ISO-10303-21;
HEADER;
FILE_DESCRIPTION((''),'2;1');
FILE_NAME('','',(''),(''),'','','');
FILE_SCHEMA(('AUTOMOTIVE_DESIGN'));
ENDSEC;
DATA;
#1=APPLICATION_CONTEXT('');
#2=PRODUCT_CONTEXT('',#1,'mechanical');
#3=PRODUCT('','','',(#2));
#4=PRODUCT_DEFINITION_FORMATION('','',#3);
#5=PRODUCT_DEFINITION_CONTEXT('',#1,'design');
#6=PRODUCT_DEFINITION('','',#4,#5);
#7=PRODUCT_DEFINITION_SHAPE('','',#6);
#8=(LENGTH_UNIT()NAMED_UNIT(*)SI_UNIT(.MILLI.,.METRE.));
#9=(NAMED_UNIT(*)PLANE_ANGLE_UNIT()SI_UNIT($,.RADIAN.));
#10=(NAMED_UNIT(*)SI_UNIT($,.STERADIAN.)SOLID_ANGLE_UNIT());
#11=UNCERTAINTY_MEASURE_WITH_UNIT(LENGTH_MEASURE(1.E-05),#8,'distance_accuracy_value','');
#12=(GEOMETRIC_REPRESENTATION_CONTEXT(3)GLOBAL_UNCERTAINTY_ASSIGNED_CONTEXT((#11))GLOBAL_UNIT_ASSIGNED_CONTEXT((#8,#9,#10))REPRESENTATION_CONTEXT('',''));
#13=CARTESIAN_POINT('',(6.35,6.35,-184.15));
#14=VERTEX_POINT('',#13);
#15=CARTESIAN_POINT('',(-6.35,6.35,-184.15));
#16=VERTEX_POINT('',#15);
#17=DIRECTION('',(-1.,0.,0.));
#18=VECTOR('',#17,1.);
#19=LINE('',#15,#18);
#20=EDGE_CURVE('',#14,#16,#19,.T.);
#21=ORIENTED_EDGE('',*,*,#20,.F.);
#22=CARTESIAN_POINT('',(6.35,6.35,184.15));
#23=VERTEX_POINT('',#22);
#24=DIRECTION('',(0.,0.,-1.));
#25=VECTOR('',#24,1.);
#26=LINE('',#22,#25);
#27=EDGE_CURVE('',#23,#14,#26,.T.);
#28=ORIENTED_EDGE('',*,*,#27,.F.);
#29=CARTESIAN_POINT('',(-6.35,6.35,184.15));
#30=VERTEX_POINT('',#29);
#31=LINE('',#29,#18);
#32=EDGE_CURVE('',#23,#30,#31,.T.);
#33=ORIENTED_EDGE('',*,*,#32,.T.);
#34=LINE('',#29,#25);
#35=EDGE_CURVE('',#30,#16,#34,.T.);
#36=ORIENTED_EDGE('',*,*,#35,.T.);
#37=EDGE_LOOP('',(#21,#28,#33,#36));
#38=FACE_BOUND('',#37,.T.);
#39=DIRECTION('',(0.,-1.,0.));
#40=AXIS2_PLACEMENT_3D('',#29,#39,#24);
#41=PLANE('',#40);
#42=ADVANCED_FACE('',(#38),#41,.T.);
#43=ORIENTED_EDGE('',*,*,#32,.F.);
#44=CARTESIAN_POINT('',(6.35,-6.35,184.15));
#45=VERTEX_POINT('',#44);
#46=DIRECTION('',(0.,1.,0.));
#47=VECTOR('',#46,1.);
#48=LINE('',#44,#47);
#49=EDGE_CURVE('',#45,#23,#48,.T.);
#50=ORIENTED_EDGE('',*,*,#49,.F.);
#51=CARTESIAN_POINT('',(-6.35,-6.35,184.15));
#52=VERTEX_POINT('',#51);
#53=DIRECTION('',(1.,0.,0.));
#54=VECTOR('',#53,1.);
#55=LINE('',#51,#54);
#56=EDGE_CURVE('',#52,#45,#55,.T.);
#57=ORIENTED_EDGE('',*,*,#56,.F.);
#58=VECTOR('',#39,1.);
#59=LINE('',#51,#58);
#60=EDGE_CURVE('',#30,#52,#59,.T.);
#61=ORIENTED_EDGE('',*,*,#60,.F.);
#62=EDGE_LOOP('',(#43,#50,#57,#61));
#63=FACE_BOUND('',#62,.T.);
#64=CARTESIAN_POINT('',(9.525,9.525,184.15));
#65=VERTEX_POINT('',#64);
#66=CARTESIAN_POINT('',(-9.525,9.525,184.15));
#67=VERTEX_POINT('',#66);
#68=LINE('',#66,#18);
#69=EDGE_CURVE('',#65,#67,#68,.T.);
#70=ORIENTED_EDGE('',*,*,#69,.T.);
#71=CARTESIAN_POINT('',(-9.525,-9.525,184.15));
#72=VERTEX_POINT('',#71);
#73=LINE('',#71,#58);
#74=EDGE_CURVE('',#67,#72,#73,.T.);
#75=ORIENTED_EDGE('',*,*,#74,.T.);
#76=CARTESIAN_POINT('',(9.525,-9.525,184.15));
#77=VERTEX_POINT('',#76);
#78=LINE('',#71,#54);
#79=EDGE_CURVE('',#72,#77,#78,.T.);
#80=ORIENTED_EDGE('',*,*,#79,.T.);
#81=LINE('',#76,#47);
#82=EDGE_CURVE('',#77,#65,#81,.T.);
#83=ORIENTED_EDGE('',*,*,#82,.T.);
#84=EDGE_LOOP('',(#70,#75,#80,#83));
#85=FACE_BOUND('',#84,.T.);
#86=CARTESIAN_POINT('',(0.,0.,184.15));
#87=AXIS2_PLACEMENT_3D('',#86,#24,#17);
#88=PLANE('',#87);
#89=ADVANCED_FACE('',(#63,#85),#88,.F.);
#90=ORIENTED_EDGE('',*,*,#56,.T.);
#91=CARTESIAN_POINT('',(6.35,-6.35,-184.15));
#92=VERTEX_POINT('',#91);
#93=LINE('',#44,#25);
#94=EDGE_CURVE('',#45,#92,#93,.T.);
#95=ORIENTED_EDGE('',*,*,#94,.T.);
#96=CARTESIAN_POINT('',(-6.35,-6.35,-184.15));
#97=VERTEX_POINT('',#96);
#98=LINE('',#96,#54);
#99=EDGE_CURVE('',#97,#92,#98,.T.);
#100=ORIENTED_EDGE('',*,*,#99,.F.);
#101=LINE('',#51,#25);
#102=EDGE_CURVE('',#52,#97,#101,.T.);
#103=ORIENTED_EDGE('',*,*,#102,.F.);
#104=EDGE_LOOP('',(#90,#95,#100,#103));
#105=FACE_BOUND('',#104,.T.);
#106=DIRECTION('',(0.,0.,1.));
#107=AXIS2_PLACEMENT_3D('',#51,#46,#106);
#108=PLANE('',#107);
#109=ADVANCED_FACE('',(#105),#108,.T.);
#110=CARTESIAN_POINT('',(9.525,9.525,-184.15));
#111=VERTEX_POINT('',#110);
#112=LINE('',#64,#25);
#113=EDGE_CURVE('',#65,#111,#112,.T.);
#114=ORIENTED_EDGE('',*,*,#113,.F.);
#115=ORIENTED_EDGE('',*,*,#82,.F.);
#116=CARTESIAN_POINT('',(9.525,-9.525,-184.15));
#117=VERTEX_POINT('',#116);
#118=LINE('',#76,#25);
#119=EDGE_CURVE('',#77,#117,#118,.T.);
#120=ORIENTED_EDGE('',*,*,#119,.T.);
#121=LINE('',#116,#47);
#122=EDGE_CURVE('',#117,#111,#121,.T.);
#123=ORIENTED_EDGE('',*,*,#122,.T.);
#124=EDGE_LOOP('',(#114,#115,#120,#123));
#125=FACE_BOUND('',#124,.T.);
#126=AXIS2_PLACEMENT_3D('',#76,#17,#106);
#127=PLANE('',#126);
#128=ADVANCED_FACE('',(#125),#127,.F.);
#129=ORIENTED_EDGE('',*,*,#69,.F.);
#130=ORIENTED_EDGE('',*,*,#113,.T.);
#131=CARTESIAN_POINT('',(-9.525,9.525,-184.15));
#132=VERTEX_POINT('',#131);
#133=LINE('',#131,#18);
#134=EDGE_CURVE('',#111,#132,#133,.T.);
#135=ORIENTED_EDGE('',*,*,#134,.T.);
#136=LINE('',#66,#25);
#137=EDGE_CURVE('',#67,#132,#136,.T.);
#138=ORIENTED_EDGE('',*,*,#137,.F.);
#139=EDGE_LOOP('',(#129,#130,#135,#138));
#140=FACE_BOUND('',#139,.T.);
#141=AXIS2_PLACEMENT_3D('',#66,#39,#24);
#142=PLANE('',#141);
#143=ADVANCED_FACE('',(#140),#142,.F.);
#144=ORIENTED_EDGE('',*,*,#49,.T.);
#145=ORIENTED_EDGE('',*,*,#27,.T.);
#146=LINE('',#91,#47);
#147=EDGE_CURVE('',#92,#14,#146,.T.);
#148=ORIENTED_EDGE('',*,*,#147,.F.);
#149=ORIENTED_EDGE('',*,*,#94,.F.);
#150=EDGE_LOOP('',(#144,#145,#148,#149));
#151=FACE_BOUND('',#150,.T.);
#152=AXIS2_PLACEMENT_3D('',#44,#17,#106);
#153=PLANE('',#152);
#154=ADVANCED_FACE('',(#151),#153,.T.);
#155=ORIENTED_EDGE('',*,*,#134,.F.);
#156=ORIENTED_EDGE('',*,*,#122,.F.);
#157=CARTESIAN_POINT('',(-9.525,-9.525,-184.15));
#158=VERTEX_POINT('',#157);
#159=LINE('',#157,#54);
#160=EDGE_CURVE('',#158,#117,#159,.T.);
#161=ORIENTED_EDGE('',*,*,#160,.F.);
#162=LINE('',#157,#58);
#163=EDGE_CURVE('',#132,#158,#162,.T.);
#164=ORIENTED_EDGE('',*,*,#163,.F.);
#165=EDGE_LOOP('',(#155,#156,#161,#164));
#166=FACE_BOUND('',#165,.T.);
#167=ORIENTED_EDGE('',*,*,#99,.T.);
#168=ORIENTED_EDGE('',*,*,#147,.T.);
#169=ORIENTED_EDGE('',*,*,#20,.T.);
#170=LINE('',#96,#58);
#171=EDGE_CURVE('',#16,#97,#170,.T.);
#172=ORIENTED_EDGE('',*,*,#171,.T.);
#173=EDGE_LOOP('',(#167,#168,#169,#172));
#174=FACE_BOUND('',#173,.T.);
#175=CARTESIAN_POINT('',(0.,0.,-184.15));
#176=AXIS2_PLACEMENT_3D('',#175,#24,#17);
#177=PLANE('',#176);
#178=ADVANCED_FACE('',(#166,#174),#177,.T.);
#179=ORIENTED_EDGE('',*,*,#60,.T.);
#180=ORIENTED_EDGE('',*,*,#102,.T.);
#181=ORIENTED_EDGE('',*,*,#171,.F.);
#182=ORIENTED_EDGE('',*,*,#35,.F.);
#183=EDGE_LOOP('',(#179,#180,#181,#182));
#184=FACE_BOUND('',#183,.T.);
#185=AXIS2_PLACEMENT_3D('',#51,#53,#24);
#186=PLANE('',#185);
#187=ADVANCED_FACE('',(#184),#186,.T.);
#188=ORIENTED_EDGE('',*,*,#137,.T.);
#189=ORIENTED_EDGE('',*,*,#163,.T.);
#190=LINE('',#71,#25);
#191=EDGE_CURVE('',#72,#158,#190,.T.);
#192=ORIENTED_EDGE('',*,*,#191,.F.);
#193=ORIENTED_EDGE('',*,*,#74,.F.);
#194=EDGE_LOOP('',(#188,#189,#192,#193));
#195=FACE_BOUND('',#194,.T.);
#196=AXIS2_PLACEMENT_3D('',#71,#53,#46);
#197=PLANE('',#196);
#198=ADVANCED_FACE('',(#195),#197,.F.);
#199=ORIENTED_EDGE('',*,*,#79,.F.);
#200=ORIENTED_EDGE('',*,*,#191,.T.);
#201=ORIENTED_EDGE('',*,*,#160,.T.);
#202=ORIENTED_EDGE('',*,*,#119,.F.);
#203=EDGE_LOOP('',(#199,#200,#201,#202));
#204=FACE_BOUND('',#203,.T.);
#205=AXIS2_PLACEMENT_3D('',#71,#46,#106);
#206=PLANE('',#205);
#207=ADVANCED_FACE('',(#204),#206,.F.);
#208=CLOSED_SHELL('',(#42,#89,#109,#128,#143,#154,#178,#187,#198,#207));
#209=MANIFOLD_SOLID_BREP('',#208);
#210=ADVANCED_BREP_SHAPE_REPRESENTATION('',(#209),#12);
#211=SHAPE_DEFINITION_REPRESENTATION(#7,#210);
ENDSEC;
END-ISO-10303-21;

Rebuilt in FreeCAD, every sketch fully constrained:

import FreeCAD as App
import Part
import Sketcher
Q = App.Units.Quantity

doc = App.newDocument("Part")
body = doc.addObject("PartDesign::Body", "Body")

# Sketch on XY plane
sketch1 = body.newObject("Sketcher::SketchObject", "Sketch")
sketch1.AttachmentSupport = (doc.getObject("XY_Plane"), [""])
sketch1.MapMode = "FlatFace"
sketch1.addGeometry([
    Part.LineSegment(App.Vector(-9.525, 9.525, 0), App.Vector(-9.525, -9.525, 0)),  # 0
    Part.LineSegment(App.Vector(-9.525, -9.525, 0), App.Vector(9.525, -9.525, 0)),  # 1
    Part.LineSegment(App.Vector(9.525, -9.525, 0), App.Vector(9.525, 9.525, 0)),  # 2
    Part.LineSegment(App.Vector(9.525, 9.525, 0), App.Vector(-9.525, 9.525, 0)),  # 3
    Part.LineSegment(App.Vector(6.35, -6.35, 0), App.Vector(-6.35, -6.35, 0)),  # 4
    Part.LineSegment(App.Vector(-6.35, -6.35, 0), App.Vector(-6.35, 6.35, 0)),  # 5
    Part.LineSegment(App.Vector(-6.35, 6.35, 0), App.Vector(6.35, 6.35, 0)),  # 6
    Part.LineSegment(App.Vector(6.35, 6.35, 0), App.Vector(6.35, -6.35, 0)),  # 7
], False)
sketch1.addConstraint([
    Sketcher.Constraint("Coincident", 0, 2, 1, 1),
    Sketcher.Constraint("Coincident", 1, 2, 2, 1),
    Sketcher.Constraint("Coincident", 2, 2, 3, 1),
    Sketcher.Constraint("Coincident", 3, 2, 0, 1),
    Sketcher.Constraint("Coincident", 4, 2, 5, 1),
    Sketcher.Constraint("Coincident", 5, 2, 6, 1),
    Sketcher.Constraint("Coincident", 6, 2, 7, 1),
    Sketcher.Constraint("Coincident", 7, 2, 4, 1),
    Sketcher.Constraint("Vertical", 0),
    Sketcher.Constraint("Horizontal", 1),
    Sketcher.Constraint("Vertical", 2),
    Sketcher.Constraint("Horizontal", 3),
    Sketcher.Constraint("Horizontal", 4),
    Sketcher.Constraint("Vertical", 5),
    Sketcher.Constraint("Horizontal", 6),
    Sketcher.Constraint("Vertical", 7),
    Sketcher.Constraint("Symmetric", 0, 2, 2, 2, -1, 1),
    Sketcher.Constraint("Symmetric", 4, 2, 6, 2, -1, 1),
    Sketcher.Constraint("Equal", 3, 0),
    Sketcher.Constraint("Equal", 6, 5),
    Sketcher.Constraint("DistanceX", 4, 2, 4, 1, Q("0.5 in")),
    Sketcher.Constraint("DistanceX", 1, 1, 1, 2, Q("0.75 in")),
])
pad1 = body.newObject("PartDesign::Pad", "Pad")
pad1.Profile = sketch1
pad1.Length = Q("14.5 in")
pad1.Midplane = True

doc.recompute()
